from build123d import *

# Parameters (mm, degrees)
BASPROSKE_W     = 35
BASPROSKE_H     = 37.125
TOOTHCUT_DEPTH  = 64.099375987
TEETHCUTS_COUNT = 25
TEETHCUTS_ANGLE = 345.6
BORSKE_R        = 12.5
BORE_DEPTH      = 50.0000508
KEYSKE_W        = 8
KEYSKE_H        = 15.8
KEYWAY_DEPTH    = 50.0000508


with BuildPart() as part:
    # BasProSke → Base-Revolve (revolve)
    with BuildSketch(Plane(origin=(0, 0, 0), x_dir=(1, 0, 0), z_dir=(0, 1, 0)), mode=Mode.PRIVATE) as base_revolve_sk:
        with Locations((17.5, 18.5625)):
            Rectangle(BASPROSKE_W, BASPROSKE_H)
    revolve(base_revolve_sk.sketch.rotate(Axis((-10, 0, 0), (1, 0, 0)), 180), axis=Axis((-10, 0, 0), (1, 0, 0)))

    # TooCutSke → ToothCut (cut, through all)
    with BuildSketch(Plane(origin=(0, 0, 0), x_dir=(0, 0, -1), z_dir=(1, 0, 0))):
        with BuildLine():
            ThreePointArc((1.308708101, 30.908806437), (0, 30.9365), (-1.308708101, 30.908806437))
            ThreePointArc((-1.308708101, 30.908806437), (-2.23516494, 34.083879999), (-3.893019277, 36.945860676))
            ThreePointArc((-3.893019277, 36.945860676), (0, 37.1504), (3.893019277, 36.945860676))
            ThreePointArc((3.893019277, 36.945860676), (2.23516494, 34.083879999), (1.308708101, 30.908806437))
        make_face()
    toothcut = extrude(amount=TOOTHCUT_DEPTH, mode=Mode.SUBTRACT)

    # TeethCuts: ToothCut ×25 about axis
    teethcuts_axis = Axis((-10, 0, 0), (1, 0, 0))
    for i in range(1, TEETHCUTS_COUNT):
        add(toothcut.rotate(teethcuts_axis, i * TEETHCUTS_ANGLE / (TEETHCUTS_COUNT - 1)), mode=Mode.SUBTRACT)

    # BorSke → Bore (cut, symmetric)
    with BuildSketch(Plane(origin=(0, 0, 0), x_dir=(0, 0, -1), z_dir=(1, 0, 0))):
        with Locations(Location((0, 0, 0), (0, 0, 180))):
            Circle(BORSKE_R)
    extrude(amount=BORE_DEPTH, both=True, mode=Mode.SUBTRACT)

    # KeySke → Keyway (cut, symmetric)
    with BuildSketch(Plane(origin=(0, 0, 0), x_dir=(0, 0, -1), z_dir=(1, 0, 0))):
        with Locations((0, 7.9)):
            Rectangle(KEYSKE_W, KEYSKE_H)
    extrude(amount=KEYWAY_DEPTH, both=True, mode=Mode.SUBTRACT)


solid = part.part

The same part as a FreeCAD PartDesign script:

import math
import FreeCAD as App
import Part
import Sketcher

V = App.Vector
Q = App.Units.Quantity


def add_polygon(sketch, points):
    """Adds a closed chain of lines whose ends are joined by coincident constraints."""
    first, n = sketch.GeometryCount, len(points)
    for a, b in zip(points, points[1:] + points[:1]):
        sketch.addGeometry(Part.LineSegment(App.Vector(*a, 0), App.Vector(*b, 0)), False)
    for i in range(n):
        sketch.addConstraint(Sketcher.Constraint("Coincident", first + i, 2, first + (i + 1) % n, 1))

doc = App.newDocument("Part")
body = doc.addObject("PartDesign::Body", "Body")

sketch1 = body.newObject("Sketcher::SketchObject", "Sketch")
sketch1.AttachmentSupport = (doc.getObject("XZ_Plane"), [""])
sketch1.MapMode = "FlatFace"
add_polygon(sketch1, [(0, -37), (0, 0), (35, 0), (35, -37)])
sketch1.addConstraint([
    Sketcher.Constraint("Vertical", 0),
    Sketcher.Constraint("Horizontal", 1),
    Sketcher.Constraint("Vertical", 2),
    Sketcher.Constraint("Horizontal", 3),
    Sketcher.Constraint("Coincident", 0, 2, -1, 1),
    Sketcher.Constraint("DistanceX", 1, 1, 1, 2, Q("35 mm")),
    Sketcher.Constraint("DistanceY", 0, 1, 0, 2, Q("37.125 mm")),
])
revolution = body.newObject("PartDesign::Revolution", "Revolution")
revolution.Profile = sketch1
revolution.ReferenceAxis = (sketch1, ["H_Axis"])
revolution.Angle = 360

sketch2 = body.newObject("Sketcher::SketchObject", "Sketch001")
sketch2.AttachmentSupport = (doc.getObject("YZ_Plane"), [""])
sketch2.MapMode = "FlatFace"
sketch2.addGeometry([
    Part.ArcOfCircle(Part.Circle(V(0, 0, 0), V(0, 0, 1), 30.9), math.radians(-2.42), math.radians(2.42)),
    Part.ArcOfCircle(Part.Circle(V(28.7, -14.9, 0), V(0, 0, 1), 13.7), math.radians(53), math.radians(81)),
    Part.ArcOfCircle(Part.Circle(V(0, 0, 0), V(0, 0, 1), 37.2), math.radians(-6.02), math.radians(6.02)),
    Part.ArcOfCircle(Part.Circle(V(28.7, 14.9, 0), V(0, 0, 1), 13.7), math.radians(-81), math.radians(-53)),
], False)
sketch2.addConstraint([
    Sketcher.Constraint("Coincident", 0, 1, 1, 2),
    Sketcher.Constraint("Coincident", 1, 1, 2, 1),
    Sketcher.Constraint("Coincident", 2, 2, 3, 2),
    Sketcher.Constraint("Coincident", 3, 1, 0, 2),
    Sketcher.Constraint("Coincident", 0, 3, -1, 1),
    Sketcher.Constraint("Coincident", 2, 3, -1, 1),
    Sketcher.Constraint("Equal", 1, 3),
    Sketcher.Constraint("Symmetric", 1, 3, 3, 3, -1),
    Sketcher.Constraint("Radius", 1, Q("13.75 mm")),
    Sketcher.Constraint("Radius", 0, Q("30.9365 mm")),
    Sketcher.Constraint("Radius", 2, Q("37.1504 mm")),
    Sketcher.Constraint("DistanceY", 1, 1, 3, 3, Q("18.7687 mm")),
    Sketcher.Constraint("DistanceY", 1, 3, -1, 1, Q("14.875681 mm")),
])
pocket1 = body.newObject("PartDesign::Pocket", "Pocket")
pocket1.Profile = sketch2
pocket1.Type = "ThroughAll"
pocket1.Reversed = True
doc.recompute()

polarpattern = body.newObject("PartDesign::PolarPattern", "PolarPattern")
polarpattern.Originals = [pocket1]
polarpattern.Axis = (doc.getObject("X_Axis"), [""])
polarpattern.Angle = 360
polarpattern.Occurrences = 25
body.Tip = polarpattern

sketch3 = body.newObject("Sketcher::SketchObject", "Sketch002")
sketch3.AttachmentSupport = (doc.getObject("YZ_Plane"), [""])
sketch3.MapMode = "FlatFace"
sketch3.addGeometry(Part.Circle(V(0, 0, 0), V(0, 0, 1), 12), False)
sketch3.addConstraint([
    Sketcher.Constraint("Coincident", 0, 3, -1, 1),
    Sketcher.Constraint("Diameter", 0, Q("25 mm")),
])
pocket2 = body.newObject("PartDesign::Pocket", "Pocket001")
pocket2.Profile = sketch3
pocket2.Length = 100.000102
pocket2.Midplane = True

sketch4 = body.newObject("Sketcher::SketchObject", "Sketch003")
sketch4.AttachmentSupport = (doc.getObject("YZ_Plane"), [""])
sketch4.MapMode = "FlatFace"
add_polygon(sketch4, [(16, 4), (0, 4), (0, -4), (16, -4)])
sketch4.addConstraint([
    Sketcher.Constraint("Horizontal", 0),
    Sketcher.Constraint("Vertical", 1),
    Sketcher.Constraint("Horizontal", 2),
    Sketcher.Constraint("Vertical", 3),
    Sketcher.Constraint("Symmetric", 0, 2, 1, 2, -1, 1),
    Sketcher.Constraint("DistanceY", 1, 2, 1, 1, Q("8 mm")),
    Sketcher.Constraint("DistanceX", 0, 2, 0, 1, Q("15.8 mm")),
])
pocket3 = body.newObject("PartDesign::Pocket", "Pocket002")
pocket3.Profile = sketch4
pocket3.Length = 100.000102
pocket3.Midplane = True

doc.recompute()
